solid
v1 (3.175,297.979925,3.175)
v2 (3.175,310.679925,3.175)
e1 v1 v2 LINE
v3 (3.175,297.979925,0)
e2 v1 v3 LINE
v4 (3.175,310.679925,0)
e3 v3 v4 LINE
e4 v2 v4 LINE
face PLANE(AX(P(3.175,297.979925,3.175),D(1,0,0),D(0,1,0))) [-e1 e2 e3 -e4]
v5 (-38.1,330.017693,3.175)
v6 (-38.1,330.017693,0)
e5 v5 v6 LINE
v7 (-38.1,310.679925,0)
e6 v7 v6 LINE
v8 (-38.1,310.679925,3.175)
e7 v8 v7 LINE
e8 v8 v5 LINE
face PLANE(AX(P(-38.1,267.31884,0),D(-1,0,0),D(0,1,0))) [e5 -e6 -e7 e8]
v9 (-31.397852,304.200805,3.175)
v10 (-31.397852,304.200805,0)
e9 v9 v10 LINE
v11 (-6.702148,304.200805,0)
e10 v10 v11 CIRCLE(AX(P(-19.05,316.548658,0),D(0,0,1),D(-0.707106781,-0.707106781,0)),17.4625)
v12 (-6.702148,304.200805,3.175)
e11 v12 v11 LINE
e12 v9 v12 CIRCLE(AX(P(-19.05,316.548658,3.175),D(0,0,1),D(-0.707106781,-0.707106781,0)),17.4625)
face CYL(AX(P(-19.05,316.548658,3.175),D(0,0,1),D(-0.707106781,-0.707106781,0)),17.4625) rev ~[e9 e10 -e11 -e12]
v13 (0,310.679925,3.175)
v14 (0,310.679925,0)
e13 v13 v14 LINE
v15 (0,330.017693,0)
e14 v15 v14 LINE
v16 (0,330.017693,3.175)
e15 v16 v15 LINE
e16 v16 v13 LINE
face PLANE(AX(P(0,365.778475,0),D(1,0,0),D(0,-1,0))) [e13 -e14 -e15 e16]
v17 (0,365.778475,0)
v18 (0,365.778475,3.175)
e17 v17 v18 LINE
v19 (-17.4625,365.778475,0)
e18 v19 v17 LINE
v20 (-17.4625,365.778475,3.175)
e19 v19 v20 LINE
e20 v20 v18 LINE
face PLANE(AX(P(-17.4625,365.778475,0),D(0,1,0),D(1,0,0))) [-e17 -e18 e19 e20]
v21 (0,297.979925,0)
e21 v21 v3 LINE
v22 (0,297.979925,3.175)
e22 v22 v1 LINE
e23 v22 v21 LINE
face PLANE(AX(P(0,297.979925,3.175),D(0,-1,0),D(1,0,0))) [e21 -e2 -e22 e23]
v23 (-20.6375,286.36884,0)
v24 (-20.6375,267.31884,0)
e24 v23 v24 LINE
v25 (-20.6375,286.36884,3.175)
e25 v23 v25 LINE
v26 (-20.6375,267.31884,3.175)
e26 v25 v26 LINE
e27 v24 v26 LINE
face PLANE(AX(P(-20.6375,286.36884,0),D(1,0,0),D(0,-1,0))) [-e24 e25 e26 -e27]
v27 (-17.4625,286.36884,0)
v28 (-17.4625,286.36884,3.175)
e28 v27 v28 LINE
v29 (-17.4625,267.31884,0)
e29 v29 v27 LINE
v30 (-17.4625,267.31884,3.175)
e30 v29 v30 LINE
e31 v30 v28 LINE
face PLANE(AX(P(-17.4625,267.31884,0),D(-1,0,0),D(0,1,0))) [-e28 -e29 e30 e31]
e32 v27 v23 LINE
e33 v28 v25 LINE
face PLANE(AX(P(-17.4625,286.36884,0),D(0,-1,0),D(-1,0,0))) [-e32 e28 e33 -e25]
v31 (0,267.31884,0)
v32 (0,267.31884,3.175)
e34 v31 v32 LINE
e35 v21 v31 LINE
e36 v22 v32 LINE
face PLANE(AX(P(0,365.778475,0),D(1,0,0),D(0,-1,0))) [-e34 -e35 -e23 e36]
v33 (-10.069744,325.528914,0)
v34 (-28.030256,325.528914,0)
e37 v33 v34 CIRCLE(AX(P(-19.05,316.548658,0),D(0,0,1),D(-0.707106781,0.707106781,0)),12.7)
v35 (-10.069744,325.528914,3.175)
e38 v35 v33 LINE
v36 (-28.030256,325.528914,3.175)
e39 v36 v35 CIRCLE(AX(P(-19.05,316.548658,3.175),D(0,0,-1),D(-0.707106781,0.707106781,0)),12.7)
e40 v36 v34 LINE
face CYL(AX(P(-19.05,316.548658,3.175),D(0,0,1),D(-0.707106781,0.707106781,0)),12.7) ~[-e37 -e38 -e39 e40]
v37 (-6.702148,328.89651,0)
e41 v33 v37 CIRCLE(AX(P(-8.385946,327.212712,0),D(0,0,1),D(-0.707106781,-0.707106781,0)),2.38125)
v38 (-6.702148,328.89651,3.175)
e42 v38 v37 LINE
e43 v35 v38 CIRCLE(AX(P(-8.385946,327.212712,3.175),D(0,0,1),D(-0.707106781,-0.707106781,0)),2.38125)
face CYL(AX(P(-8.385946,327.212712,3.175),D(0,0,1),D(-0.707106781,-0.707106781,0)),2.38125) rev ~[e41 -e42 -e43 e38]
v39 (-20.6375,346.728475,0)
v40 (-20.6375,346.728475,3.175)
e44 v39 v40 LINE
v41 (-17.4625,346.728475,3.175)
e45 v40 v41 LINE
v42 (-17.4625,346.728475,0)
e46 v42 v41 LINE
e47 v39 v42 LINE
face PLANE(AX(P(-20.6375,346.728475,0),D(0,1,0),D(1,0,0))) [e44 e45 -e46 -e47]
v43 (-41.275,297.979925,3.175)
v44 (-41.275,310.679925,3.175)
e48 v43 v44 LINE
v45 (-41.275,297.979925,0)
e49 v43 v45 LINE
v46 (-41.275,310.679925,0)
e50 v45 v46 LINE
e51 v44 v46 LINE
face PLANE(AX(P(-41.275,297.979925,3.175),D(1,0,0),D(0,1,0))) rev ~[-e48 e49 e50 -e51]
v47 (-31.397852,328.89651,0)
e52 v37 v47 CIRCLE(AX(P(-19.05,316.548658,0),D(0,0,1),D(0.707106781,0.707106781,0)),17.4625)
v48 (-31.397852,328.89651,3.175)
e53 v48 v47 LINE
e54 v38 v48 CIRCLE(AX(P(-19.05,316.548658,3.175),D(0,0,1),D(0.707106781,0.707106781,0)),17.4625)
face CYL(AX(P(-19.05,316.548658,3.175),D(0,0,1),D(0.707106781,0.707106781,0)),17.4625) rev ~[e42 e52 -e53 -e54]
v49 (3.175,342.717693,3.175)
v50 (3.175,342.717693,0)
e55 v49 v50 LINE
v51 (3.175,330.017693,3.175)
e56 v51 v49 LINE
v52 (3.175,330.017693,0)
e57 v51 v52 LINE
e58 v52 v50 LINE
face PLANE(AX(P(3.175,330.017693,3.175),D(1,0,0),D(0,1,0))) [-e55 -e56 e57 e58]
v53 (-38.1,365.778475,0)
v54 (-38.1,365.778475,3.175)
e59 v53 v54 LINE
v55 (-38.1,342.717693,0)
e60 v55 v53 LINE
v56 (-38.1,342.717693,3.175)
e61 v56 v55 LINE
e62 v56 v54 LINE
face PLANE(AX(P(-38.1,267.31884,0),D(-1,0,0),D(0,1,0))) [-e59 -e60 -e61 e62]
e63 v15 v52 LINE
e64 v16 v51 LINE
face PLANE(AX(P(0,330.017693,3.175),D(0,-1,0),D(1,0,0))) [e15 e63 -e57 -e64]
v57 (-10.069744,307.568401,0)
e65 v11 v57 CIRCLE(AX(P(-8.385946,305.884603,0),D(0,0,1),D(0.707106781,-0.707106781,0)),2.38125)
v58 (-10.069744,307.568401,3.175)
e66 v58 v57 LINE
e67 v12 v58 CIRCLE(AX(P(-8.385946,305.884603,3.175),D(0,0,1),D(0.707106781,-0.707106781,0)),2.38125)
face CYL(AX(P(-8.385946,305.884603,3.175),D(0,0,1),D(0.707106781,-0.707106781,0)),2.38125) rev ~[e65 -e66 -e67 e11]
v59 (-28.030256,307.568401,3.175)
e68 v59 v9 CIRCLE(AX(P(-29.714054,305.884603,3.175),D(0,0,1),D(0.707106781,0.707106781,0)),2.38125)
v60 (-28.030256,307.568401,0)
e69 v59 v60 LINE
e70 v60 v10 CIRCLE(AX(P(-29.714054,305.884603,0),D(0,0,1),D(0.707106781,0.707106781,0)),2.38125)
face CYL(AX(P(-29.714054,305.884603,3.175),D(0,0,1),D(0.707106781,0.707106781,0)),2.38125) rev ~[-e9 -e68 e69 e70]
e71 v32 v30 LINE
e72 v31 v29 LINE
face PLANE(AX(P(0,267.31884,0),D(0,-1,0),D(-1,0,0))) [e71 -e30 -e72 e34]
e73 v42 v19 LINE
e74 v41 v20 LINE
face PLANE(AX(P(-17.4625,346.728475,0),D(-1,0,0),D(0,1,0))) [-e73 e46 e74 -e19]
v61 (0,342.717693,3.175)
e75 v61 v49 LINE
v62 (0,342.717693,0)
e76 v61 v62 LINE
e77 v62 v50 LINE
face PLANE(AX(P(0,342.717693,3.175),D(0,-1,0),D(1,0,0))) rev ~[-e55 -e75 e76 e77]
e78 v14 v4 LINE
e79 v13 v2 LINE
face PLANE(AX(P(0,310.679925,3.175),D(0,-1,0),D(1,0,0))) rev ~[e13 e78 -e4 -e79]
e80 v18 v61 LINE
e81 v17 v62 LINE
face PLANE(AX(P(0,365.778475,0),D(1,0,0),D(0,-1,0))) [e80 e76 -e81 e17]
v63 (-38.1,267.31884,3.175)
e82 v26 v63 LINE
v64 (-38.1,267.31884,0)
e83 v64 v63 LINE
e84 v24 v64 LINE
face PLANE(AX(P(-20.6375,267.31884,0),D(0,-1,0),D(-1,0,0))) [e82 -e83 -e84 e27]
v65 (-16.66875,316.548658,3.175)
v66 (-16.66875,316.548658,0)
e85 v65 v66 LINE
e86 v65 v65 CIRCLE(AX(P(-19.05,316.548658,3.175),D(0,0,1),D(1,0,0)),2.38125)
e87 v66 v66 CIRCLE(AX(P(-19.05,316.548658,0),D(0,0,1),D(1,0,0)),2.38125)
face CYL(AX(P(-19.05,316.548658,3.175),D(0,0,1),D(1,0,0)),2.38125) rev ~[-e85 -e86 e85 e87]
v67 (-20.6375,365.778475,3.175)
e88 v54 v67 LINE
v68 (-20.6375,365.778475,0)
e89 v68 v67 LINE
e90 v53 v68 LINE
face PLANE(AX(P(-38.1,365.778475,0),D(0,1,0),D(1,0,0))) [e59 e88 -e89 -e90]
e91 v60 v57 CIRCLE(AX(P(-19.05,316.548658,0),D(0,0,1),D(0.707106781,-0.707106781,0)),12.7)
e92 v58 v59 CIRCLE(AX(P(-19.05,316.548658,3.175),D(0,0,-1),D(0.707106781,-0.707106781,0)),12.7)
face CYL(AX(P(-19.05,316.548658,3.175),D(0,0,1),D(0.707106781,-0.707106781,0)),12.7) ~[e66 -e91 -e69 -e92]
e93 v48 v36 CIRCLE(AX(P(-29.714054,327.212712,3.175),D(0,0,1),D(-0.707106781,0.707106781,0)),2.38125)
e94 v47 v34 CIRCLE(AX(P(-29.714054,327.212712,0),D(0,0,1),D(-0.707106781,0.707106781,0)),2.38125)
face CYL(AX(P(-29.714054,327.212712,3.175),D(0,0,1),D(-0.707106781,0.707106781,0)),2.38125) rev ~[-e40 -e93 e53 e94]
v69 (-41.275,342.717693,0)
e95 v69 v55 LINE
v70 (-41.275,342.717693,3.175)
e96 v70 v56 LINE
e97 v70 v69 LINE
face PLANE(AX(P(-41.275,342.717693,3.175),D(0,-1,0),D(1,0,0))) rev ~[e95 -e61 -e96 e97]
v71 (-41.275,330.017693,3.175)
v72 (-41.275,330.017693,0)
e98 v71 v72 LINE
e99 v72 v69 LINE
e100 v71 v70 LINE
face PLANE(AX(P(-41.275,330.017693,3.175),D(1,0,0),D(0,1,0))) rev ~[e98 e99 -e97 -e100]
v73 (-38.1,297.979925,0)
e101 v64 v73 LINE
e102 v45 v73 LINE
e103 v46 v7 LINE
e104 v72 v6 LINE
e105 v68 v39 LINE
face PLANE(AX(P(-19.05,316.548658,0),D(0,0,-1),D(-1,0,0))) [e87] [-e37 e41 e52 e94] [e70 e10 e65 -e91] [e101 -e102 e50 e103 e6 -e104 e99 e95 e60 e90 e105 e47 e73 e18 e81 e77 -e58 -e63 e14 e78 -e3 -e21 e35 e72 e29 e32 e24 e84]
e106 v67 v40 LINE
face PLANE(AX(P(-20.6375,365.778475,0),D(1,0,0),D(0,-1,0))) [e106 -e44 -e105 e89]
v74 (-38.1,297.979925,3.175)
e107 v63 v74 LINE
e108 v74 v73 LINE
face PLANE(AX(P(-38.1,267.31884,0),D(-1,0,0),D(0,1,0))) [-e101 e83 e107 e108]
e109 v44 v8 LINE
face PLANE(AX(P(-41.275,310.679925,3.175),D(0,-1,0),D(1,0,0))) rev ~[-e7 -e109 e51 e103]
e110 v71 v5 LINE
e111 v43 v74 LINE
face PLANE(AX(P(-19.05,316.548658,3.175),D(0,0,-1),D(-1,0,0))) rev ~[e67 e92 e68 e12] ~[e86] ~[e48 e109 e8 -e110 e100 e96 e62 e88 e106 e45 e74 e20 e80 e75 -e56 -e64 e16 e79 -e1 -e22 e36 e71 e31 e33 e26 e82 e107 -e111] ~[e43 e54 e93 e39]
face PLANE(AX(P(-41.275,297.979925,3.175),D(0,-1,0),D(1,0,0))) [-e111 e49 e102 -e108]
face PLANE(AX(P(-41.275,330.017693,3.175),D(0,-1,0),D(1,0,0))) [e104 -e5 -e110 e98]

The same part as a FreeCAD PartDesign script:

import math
import FreeCAD as App
import Part
import Sketcher
Q = App.Units.Quantity


def add_polygon(sketch, points):
    """Adds a closed chain of lines whose ends are joined by coincident constraints."""
    first, n = sketch.GeometryCount, len(points)
    for a, b in zip(points, points[1:] + points[:1]):
        sketch.addGeometry(Part.LineSegment(App.Vector(*a, 0), App.Vector(*b, 0)), False)
    for i in range(n):
        sketch.addConstraint(Sketcher.Constraint("Coincident", first + i, 2, first + (i + 1) % n, 1))

doc = App.newDocument("Part")
body = doc.addObject("PartDesign::Body", "Body")

# Sketch on XY plane
sketch1 = body.newObject("Sketcher::SketchObject", "Sketch")
sketch1.AttachmentSupport = (doc.getObject("XY_Plane"), [""])
sketch1.MapMode = "FlatFace"
add_polygon(sketch1, [(-20.6, 365.8), (-38.1, 365.8), (-38.1, 267.3), (-20.6, 267.3), (-20.6, 286.4), (-17.5, 286.4), (-17.5, 267.3), (0, 267.3), (0, 365.8), (-17.5, 365.8), (-17.5, 346.7), (-20.6, 346.7)])  # lines 0-11
sketch1.addConstraint([
    Sketcher.Constraint("Horizontal", 0),
    Sketcher.Constraint("Vertical", 1),
    Sketcher.Constraint("Horizontal", 2),
    Sketcher.Constraint("Vertical", 3),
    Sketcher.Constraint("Horizontal", 4),
    Sketcher.Constraint("Vertical", 5),
    Sketcher.Constraint("Horizontal", 6),
    Sketcher.Constraint("Vertical", 7),
    Sketcher.Constraint("Horizontal", 8),
    Sketcher.Constraint("Vertical", 9),
    Sketcher.Constraint("Horizontal", 10),
    Sketcher.Constraint("Vertical", 11),
    Sketcher.Constraint("PointOnObject", 6, 2, -2),
    Sketcher.Constraint("Horizontal", 2, 2, 5, 2),
    Sketcher.Constraint("Horizontal", 0, 2, 7, 2),
    Sketcher.Constraint("Vertical", 5, 2, 8, 2),
    Sketcher.Constraint("Vertical", 3, 2, 10, 2),
    Sketcher.Constraint("Equal", 2, 6),
    Sketcher.Constraint("Equal", 5, 9),
    Sketcher.Constraint("DistanceY", 3, 1, 3, 2, Q("0.75 in")),
    Sketcher.Constraint("DistanceX", 0, 2, -1, 1, Q("1.5 in")),
    Sketcher.Constraint("DistanceX", 0, 2, 0, 1, Q("0.6875 in")),
    Sketcher.Constraint("DistanceY", 1, 2, 1, 1, 98.459635),
    Sketcher.Constraint("DistanceY", -1, 1, 1, 2, 267.31884),
])
pad1 = body.newObject("PartDesign::Pad", "Pad")
pad1.Profile = sketch1
pad1.Length = Q("0.125 in")

# Sketch on XY plane
sketch2 = body.newObject("Sketcher::SketchObject", "Sketch001")
sketch2.AttachmentSupport = (doc.getObject("XY_Plane"), [""])
sketch2.MapMode = "FlatFace"
sketch2.AttachmentOffset = App.Placement(App.Vector(0, 0, 0.125 * 25.4), App.Rotation())
sketch2.addGeometry([
    Part.Circle(App.Vector(-19.1, 316.5, 0), App.Vector(0, 0, 1), 2.4),  # 0
    Part.ArcOfCircle(Part.Circle(App.Vector(-19.1, 316.5, 0), App.Vector(0, 0, 1), 17.5), math.radians(-135), math.radians(-45)),  # 1
    Part.ArcOfCircle(Part.Circle(App.Vector(-8.4, 305.9, 0), App.Vector(0, 0, 1), 2.4), math.radians(-45), math.radians(135)),  # 2
    Part.ArcOfCircle(Part.Circle(App.Vector(-19.1, 316.5, 0), App.Vector(0, 0, 1), 12.7), math.radians(-135), math.radians(-45)),  # 3
    Part.ArcOfCircle(Part.Circle(App.Vector(-29.7, 305.9, 0), App.Vector(0, 0, 1), 2.4), math.radians(45), math.radians(225)),  # 4
    Part.ArcOfCircle(Part.Circle(App.Vector(-19.1, 316.5, 0), App.Vector(0, 0, 1), 17.5), math.radians(45), math.radians(135)),  # 5
    Part.ArcOfCircle(Part.Circle(App.Vector(-29.7, 327.2, 0), App.Vector(0, 0, 1), 2.4), math.radians(135), math.radians(315)),  # 6
    Part.ArcOfCircle(Part.Circle(App.Vector(-19.1, 316.5, 0), App.Vector(0, 0, 1), 12.7), math.radians(45), math.radians(135)),  # 7
    Part.ArcOfCircle(Part.Circle(App.Vector(-8.4, 327.2, 0), App.Vector(0, 0, 1), 2.4), math.radians(-135), math.radians(45)),  # 8
], False)
sketch2.addConstraint([
    Sketcher.Constraint("Tangent", 1, 2, 2, 1),
    Sketcher.Constraint("Tangent", 2, 2, 3, 2),
    Sketcher.Constraint("Tangent", 3, 1, 4, 1),
    Sketcher.Constraint("Tangent", 4, 2, 1, 1),
    Sketcher.Constraint("Tangent", 5, 2, 6, 1),
    Sketcher.Constraint("Tangent", 6, 2, 7, 2),
    Sketcher.Constraint("Tangent", 7, 1, 8, 1),
    Sketcher.Constraint("Tangent", 8, 2, 5, 1),
    Sketcher.Constraint("Coincident", 1, 3, 0, 3),
    Sketcher.Constraint("Coincident", 3, 3, 0, 3),
    Sketcher.Constraint("Coincident", 5, 3, 0, 3),
    Sketcher.Constraint("Coincident", 7, 3, 0, 3),
    Sketcher.Constraint("Equal", 0, 2),
    Sketcher.Constraint("Equal", 1, 5),
    Sketcher.Constraint("Equal", 4, 6),
    Sketcher.Constraint("Horizontal", 2, 3, 4, 3),
    Sketcher.Constraint("Horizontal", 6, 3, 8, 3),
    Sketcher.Constraint("Vertical", 4, 3, 6, 3),
    Sketcher.Constraint("Radius", 3, Q("0.5 in")),
    Sketcher.Constraint("Diameter", 0, Q("0.1875 in")),
    Sketcher.Constraint("DistanceX", 0, 3, -1, 1, Q("0.75 in")),
    Sketcher.Constraint("DistanceY", -1, 1, 2, 2, 307.568401),
    Sketcher.Constraint("DistanceX", 2, 3, 1, 2, 1.683798),
])
pocket1 = body.newObject("PartDesign::Pocket", "Pocket")
pocket1.Profile = sketch2
pocket1.Length = Q("0.2 in")

# Sketch on XY plane
sketch3 = body.newObject("Sketcher::SketchObject", "Sketch002")
sketch3.AttachmentSupport = (doc.getObject("XY_Plane"), [""])
sketch3.MapMode = "FlatFace"
sketch3.AttachmentOffset = App.Placement(App.Vector(0, 0, 0.125 * 25.4), App.Rotation())
add_polygon(sketch3, [(0, 342.7), (0, 330), (3.2, 330), (3.2, 342.7)])  # lines 0-3
add_polygon(sketch3, [(0, 310.7), (0, 298), (3.2, 298), (3.2, 310.7)])  # lines 4-7
add_polygon(sketch3, [(-41.3, 310.7), (-41.3, 298), (-38.1, 298), (-38.1, 310.7)])  # lines 8-11
add_polygon(sketch3, [(-41.3, 342.7), (-41.3, 330), (-38.1, 330), (-38.1, 342.7)])  # lines 12-15
sketch3.addConstraint([
    Sketcher.Constraint("Vertical", 0),
    Sketcher.Constraint("Horizontal", 1),
    Sketcher.Constraint("Vertical", 2),
    Sketcher.Constraint("Horizontal", 3),
    Sketcher.Constraint("Vertical", 4),
    Sketcher.Constraint("Horizontal", 5),
    Sketcher.Constraint("Vertical", 6),
    Sketcher.Constraint("Horizontal", 7),
    Sketcher.Constraint("Vertical", 8),
    Sketcher.Constraint("Horizontal", 9),
    Sketcher.Constraint("Vertical", 10),
    Sketcher.Constraint("Horizontal", 11),
    Sketcher.Constraint("Vertical", 12),
    Sketcher.Constraint("Horizontal", 13),
    Sketcher.Constraint("Vertical", 14),
    Sketcher.Constraint("Horizontal", 15),
    Sketcher.Constraint("PointOnObject", 0, 2, -2),
    Sketcher.Constraint("PointOnObject", 4, 2, -2),
    Sketcher.Constraint("Horizontal", 5, 2, 8, 2),
    Sketcher.Constraint("Horizontal", 7, 2, 10, 2),
    Sketcher.Constraint("Horizontal", 1, 2, 12, 2),
    Sketcher.Constraint("Horizontal", 3, 2, 14, 2),
    Sketcher.Constraint("Vertical", 2, 2, 5, 2),
    Sketcher.Constraint("Vertical", 11, 2, 12, 2),
    Sketcher.Constraint("Vertical", 10, 2, 13, 2),
    Sketcher.Constraint("Equal", 7, 9),
    Sketcher.Constraint("Equal", 2, 4),
    Sketcher.Constraint("DistanceY", 0, 2, 0, 1, Q("0.5 in")),
    Sketcher.Constraint("DistanceX", 9, 2, -1, 1, Q("1.5 in")),
    Sketcher.Constraint("DistanceX", 1, 1, 1, 2, Q("0.125 in")),
    Sketcher.Constraint("DistanceY", 4, 2, 0, 2, 32.037768),
    Sketcher.Constraint("DistanceY", -1, 1, 0, 2, 330.017693),
])
pad2 = body.newObject("PartDesign::Pad", "Pad001")
pad2.Profile = sketch3
pad2.Length = Q("0.125 in")
pad2.Reversed = True

doc.recompute()
